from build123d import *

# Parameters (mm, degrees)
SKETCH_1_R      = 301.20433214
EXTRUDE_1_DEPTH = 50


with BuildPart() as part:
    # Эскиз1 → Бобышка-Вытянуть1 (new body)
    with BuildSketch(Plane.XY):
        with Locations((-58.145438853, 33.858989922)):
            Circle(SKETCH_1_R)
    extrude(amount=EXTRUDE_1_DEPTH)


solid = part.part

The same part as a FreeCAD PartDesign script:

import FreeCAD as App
import Part
import Sketcher
Q = App.Units.Quantity

doc = App.newDocument("Part")
body = doc.addObject("PartDesign::Body", "Body")

sketch1 = body.newObject("Sketcher::SketchObject", "Sketch")
sketch1.AttachmentSupport = (doc.getObject("XY_Plane"), [""])
sketch1.MapMode = "FlatFace"
sketch1.addGeometry(Part.Circle(App.Vector(-58, 34, 0), App.Vector(0, 0, 1), 301), False)
sketch1.addConstraint(Sketcher.Constraint("Diameter", 0, Q("602.408664 mm")))
sketch1.addConstraint(Sketcher.Constraint("DistanceX", 0, 3, -1, 1, Q("58.145439 mm")))
sketch1.addConstraint(Sketcher.Constraint("DistanceY", -1, 1, 0, 3, Q("33.85899 mm")))
pad1 = body.newObject("PartDesign::Pad", "Pad")
pad1.Profile = sketch1
pad1.Length = 50

doc.recompute()
